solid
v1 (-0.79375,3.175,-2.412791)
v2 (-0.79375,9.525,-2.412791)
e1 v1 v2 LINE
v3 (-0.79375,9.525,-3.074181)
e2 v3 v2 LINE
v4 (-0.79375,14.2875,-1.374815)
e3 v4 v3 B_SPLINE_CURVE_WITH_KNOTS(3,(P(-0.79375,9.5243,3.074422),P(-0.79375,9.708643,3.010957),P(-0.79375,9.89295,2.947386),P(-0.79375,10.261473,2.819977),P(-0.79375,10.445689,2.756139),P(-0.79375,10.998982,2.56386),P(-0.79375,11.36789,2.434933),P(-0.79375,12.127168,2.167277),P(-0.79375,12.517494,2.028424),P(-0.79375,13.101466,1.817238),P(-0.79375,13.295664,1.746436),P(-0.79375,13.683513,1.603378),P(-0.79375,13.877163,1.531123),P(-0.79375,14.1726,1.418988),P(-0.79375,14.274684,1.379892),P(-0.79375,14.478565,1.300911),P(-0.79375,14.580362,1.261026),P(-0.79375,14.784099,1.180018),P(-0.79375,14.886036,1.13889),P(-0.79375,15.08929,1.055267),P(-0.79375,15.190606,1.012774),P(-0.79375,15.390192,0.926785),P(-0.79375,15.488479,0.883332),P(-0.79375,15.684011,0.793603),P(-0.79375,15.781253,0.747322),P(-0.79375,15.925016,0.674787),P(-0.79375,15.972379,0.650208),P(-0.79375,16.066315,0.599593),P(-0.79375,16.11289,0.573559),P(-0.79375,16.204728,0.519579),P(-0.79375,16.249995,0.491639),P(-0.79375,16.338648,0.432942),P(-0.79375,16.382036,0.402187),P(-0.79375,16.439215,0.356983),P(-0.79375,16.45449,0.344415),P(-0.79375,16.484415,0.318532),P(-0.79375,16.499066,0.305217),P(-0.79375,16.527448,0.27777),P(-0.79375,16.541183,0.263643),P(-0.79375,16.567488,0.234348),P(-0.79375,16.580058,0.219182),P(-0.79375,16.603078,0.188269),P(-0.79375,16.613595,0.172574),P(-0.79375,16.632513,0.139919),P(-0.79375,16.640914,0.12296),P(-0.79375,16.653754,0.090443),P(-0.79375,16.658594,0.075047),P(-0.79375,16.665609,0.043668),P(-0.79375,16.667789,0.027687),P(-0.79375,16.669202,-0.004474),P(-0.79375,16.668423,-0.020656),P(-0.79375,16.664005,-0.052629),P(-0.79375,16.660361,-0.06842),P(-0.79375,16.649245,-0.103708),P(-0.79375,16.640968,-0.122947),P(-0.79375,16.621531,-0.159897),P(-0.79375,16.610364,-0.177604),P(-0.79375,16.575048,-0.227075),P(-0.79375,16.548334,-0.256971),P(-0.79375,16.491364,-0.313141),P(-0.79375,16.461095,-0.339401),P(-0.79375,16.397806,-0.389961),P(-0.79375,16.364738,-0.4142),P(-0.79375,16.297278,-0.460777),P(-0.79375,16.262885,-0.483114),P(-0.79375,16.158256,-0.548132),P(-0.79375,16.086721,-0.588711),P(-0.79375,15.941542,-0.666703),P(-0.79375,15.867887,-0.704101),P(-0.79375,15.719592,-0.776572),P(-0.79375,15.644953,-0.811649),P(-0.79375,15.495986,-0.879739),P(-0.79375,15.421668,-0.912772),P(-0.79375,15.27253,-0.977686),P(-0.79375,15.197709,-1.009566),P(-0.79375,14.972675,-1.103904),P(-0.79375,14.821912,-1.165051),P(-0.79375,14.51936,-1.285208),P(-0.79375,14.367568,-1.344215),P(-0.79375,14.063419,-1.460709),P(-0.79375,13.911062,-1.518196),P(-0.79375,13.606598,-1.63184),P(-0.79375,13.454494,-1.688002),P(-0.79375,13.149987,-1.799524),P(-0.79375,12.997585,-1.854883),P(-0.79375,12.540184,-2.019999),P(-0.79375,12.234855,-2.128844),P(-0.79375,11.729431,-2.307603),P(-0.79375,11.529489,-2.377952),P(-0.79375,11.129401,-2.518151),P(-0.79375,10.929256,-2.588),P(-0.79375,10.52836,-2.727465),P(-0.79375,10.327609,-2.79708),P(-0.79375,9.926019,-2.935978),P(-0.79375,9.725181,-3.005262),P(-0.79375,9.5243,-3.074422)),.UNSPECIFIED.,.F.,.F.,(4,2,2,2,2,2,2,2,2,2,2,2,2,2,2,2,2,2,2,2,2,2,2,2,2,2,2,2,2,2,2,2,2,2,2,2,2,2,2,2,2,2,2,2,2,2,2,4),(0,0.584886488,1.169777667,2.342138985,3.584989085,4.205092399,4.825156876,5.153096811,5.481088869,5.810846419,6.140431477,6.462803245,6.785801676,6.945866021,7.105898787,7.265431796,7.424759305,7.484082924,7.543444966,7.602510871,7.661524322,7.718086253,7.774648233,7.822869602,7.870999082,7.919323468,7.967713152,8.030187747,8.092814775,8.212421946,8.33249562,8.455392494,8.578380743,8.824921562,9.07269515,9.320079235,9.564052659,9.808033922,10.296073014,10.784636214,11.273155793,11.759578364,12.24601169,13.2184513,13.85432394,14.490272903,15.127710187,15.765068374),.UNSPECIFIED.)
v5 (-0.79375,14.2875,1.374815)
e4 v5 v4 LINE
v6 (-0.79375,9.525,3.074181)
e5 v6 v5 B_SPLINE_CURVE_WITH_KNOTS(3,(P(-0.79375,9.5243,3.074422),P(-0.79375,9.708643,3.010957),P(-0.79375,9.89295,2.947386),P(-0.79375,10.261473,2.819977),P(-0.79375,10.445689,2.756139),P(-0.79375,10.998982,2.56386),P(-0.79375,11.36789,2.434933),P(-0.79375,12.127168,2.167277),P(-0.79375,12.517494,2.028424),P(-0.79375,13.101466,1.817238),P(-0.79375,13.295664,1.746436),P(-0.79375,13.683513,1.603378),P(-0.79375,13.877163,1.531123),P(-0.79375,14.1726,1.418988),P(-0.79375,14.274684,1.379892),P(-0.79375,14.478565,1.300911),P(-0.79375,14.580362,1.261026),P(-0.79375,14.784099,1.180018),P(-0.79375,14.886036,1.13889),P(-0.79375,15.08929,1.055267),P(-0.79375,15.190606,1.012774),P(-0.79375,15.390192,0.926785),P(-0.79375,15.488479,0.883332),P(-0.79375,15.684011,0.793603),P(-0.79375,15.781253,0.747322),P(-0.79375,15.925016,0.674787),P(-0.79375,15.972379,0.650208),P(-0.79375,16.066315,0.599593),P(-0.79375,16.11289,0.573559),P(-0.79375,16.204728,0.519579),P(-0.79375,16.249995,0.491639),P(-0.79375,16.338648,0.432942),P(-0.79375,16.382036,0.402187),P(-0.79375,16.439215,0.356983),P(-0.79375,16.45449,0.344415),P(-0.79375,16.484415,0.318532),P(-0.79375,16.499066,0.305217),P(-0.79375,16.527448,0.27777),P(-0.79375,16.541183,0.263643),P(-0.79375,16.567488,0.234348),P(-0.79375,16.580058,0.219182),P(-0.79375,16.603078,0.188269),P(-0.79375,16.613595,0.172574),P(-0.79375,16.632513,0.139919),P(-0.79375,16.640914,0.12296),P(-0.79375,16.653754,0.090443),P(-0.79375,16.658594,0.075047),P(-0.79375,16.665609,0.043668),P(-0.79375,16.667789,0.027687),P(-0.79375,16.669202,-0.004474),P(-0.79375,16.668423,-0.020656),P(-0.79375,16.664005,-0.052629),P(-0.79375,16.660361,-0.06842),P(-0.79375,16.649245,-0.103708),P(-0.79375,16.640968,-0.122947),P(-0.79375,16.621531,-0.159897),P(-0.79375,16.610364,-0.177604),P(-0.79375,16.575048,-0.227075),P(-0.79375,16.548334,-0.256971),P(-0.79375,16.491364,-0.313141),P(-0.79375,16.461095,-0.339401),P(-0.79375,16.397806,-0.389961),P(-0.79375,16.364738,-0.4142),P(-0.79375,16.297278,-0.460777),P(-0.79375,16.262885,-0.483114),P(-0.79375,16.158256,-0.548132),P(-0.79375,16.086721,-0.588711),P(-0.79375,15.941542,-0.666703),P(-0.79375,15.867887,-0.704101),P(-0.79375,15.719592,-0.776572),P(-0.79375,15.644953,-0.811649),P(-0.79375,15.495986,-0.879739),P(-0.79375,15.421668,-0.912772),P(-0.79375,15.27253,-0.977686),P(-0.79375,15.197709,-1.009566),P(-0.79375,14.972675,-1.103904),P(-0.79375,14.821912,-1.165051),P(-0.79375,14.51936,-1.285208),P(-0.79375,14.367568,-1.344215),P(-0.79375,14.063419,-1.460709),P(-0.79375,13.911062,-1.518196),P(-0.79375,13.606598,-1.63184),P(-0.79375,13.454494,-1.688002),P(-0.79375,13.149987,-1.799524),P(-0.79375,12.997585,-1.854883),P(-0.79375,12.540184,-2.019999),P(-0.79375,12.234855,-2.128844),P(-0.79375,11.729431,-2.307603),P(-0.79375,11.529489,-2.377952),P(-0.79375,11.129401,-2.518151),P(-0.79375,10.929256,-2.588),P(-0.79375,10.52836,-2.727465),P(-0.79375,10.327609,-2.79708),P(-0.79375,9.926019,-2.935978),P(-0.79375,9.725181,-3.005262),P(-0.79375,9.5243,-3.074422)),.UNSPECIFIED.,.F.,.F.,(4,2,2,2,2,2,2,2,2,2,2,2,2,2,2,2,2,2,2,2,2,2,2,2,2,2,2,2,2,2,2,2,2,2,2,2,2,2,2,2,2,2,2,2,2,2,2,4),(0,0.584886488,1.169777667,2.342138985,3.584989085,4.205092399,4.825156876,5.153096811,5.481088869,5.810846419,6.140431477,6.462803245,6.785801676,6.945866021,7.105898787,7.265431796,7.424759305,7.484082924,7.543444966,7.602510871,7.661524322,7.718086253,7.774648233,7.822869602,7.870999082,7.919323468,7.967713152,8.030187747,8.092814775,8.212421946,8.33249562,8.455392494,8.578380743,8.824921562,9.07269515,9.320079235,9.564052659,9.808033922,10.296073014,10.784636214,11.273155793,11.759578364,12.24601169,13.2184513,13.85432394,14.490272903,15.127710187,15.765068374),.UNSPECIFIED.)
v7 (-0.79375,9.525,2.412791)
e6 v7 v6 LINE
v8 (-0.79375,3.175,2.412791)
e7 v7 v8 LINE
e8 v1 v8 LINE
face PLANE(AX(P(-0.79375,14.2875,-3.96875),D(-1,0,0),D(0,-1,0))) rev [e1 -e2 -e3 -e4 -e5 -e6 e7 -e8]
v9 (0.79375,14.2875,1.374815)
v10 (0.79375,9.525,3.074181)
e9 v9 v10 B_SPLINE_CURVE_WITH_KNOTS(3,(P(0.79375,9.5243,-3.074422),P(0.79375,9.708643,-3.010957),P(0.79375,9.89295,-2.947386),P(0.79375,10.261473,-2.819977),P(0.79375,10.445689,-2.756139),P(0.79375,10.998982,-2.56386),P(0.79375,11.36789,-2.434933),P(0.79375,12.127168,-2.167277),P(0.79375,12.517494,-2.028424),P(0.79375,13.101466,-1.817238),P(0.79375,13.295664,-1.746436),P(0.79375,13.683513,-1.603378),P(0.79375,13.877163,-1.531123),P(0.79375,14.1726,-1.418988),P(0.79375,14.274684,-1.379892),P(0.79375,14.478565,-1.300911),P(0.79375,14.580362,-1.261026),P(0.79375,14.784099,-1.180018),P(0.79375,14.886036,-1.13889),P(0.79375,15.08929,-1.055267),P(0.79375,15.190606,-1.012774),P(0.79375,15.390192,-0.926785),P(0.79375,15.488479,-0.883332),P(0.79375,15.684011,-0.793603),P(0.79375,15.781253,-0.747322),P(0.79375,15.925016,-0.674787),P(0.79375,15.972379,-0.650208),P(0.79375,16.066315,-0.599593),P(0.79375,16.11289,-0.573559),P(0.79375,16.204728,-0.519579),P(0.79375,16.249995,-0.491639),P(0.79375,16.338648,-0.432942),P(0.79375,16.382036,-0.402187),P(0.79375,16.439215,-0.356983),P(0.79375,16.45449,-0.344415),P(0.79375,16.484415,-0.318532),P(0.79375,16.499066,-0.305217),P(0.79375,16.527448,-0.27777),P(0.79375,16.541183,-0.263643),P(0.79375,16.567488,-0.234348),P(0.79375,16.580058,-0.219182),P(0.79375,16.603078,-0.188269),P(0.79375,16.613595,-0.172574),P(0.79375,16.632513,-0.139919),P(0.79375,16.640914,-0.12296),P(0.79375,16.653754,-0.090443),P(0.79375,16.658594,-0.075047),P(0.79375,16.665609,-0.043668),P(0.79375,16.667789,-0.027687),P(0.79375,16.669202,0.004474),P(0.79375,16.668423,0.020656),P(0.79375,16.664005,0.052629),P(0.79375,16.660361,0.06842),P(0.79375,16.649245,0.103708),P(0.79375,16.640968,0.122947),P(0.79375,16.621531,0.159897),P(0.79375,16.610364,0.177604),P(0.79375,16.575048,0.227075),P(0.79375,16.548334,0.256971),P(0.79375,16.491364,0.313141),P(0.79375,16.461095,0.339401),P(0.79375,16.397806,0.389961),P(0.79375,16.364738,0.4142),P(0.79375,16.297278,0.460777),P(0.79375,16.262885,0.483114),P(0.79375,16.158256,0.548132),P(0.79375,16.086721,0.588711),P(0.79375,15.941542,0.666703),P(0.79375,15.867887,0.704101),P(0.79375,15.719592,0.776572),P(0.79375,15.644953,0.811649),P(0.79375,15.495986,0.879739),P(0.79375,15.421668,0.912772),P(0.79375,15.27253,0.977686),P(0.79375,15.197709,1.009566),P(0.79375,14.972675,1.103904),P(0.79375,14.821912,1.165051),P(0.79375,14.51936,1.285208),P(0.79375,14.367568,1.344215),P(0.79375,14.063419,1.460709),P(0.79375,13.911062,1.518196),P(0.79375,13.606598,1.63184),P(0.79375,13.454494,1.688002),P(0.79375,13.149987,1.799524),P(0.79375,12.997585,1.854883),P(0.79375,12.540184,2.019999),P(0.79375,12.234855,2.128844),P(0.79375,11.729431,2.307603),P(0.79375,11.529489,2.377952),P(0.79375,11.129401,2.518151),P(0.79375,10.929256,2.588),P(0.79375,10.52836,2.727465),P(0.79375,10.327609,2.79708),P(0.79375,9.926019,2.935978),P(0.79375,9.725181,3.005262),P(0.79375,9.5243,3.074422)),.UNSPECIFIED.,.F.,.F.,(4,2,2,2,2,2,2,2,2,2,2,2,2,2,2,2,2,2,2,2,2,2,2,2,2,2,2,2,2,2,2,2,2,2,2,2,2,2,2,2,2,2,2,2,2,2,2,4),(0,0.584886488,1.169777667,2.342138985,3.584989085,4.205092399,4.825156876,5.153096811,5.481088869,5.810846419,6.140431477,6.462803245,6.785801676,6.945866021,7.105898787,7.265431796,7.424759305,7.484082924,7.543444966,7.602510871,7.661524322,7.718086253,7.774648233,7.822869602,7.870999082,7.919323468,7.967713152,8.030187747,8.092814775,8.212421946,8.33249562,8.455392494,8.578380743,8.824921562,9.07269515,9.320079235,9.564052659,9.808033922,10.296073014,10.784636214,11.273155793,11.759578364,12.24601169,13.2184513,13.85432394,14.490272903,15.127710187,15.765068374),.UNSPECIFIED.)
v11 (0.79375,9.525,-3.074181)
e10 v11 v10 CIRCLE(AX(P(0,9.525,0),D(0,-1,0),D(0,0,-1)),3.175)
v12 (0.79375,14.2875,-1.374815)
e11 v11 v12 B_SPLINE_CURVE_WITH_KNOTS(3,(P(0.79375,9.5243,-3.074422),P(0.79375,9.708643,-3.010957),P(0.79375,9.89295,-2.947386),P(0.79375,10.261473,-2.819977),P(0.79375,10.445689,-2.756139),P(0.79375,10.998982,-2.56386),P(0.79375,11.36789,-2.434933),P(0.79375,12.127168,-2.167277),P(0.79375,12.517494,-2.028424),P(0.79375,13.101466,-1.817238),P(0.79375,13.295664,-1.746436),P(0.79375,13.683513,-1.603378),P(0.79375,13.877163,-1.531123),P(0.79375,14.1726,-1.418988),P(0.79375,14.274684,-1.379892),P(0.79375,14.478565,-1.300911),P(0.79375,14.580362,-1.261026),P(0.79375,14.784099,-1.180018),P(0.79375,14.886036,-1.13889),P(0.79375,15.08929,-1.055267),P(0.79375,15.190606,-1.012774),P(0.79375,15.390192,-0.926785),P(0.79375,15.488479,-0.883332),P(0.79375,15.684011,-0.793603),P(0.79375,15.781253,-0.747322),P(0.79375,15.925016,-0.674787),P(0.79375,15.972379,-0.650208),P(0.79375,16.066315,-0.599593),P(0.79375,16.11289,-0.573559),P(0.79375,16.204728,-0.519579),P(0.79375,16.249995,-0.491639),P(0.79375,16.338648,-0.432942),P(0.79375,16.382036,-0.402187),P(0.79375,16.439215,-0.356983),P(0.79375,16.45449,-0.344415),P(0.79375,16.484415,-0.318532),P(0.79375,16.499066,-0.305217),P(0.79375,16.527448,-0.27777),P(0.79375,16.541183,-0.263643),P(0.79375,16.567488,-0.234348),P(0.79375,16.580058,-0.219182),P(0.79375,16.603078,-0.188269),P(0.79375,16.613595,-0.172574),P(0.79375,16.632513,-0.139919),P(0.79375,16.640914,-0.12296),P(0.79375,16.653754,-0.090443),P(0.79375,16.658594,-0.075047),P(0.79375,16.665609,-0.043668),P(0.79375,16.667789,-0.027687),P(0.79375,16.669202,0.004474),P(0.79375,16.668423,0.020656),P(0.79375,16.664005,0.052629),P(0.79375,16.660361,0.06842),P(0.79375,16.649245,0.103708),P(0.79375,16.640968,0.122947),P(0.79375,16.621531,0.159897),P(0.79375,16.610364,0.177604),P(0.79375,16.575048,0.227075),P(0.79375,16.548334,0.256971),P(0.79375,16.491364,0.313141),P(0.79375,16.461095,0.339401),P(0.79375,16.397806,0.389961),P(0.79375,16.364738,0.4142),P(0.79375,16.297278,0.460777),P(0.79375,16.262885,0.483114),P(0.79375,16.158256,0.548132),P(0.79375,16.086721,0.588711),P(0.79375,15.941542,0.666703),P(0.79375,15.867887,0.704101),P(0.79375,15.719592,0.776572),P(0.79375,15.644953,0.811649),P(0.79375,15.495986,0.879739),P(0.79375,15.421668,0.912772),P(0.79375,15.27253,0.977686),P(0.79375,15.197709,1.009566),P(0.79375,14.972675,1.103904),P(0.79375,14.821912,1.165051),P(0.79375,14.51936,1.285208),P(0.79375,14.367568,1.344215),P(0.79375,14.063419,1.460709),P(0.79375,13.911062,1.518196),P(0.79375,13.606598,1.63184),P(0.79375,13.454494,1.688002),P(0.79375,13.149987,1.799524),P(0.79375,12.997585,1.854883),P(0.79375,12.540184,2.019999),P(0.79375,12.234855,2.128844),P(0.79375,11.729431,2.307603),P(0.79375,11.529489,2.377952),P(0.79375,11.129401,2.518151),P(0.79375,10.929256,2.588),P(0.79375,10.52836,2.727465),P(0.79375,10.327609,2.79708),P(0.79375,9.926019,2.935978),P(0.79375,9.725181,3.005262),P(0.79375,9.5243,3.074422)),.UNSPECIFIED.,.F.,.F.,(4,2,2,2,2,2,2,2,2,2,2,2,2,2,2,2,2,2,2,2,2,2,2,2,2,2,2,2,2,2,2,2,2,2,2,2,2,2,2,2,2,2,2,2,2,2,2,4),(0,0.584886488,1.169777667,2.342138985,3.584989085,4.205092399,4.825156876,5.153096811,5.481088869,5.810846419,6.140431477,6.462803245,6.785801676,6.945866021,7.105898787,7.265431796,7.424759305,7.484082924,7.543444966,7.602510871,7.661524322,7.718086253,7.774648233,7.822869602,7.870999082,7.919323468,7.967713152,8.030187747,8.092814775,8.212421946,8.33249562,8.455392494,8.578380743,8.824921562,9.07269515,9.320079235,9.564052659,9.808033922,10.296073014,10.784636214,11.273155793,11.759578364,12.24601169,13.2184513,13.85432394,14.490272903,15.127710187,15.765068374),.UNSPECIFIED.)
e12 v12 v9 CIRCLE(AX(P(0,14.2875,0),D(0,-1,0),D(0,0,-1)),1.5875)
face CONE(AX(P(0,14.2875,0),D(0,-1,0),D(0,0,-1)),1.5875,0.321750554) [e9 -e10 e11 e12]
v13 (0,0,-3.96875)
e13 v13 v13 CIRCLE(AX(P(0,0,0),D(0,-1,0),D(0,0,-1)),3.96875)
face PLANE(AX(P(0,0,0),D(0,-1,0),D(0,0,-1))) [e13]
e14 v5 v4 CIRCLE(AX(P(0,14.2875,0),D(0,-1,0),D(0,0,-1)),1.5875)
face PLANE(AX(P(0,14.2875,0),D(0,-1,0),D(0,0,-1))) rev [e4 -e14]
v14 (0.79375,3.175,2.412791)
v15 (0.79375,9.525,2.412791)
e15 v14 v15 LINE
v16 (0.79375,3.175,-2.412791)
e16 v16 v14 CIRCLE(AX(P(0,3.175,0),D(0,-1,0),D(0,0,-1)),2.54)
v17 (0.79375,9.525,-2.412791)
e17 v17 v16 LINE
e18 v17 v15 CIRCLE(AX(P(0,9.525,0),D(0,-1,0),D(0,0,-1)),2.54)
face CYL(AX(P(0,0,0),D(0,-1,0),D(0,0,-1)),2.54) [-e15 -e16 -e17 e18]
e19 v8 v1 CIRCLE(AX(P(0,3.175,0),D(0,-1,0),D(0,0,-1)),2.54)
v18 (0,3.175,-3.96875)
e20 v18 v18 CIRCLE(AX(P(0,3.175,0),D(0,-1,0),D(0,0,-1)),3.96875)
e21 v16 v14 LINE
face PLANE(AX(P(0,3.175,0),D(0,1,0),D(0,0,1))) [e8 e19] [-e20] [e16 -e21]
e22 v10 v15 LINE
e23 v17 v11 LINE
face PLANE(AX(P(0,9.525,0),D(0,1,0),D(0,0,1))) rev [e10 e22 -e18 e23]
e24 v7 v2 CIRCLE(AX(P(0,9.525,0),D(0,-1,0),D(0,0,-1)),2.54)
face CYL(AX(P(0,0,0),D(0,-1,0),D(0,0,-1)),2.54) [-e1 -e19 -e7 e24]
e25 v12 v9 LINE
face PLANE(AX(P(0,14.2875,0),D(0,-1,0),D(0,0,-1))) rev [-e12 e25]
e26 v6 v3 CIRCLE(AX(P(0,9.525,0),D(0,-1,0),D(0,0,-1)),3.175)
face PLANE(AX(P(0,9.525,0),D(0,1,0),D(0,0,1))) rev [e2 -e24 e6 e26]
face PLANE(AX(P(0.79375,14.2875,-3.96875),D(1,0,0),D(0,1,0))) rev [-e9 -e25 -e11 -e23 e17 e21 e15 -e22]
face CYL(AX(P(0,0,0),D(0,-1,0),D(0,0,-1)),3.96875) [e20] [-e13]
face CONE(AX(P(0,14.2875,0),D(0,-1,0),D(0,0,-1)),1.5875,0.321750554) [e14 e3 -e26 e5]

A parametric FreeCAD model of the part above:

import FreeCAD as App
import Part
import Sketcher
from FreeCAD import Vector
Q = App.Units.Quantity


def add_polygon(sketch, points):
    """Adds a closed chain of lines whose ends are joined by coincident constraints."""
    first, n = sketch.GeometryCount, len(points)
    for a, b in zip(points, points[1:] + points[:1]):
        sketch.addGeometry(Part.LineSegment(App.Vector(*a, 0), App.Vector(*b, 0)), False)
    for i in range(n):
        sketch.addConstraint(Sketcher.Constraint("Coincident", first + i, 2, first + (i + 1) % n, 1))

doc = App.newDocument("Part")
body = doc.addObject("PartDesign::Body", "Body")

sketch1 = body.newObject("Sketcher::SketchObject", "Sketch")
sketch1.AttachmentSupport = (doc.getObject("YZ_Plane"), [""])
sketch1.MapMode = "FlatFace"
add_polygon(sketch1, [(0, 0), (0, -4), (3.2, -4), (3.2, -2.5), (9.5, -2.5), (9.5, -3.2), (14.3, -1.6), (14.3, 0)])
sketch1.addConstraint([
    Sketcher.Constraint("Vertical", 0),
    Sketcher.Constraint("Horizontal", 1),
    Sketcher.Constraint("Vertical", 2),
    Sketcher.Constraint("Horizontal", 3),
    Sketcher.Constraint("Vertical", 4),
    Sketcher.Constraint("Vertical", 6),
    Sketcher.Constraint("Horizontal", 7),
    Sketcher.Constraint("Coincident", 7, 2, -1, 1),
    Sketcher.Constraint("DistanceX", 3, 1, 3, 2, Q("0.25 in")),
    Sketcher.Constraint("DistanceY", 2, 2, -1, 1, Q("0.1 in")),
    Sketcher.Constraint("DistanceX", 1, 1, 1, 2, Q("0.125 in")),
    Sketcher.Constraint("DistanceX", 7, 2, 7, 1, Q("0.5625 in")),
    Sketcher.Constraint("DistanceY", 0, 2, 0, 1, Q("0.15625 in")),
    Sketcher.Constraint("DistanceY", 4, 2, 4, 1, Q("0.025 in")),
    Sketcher.Constraint("DistanceY", 6, 1, 6, 2, Q("0.0625 in")),
])
revolution = body.newObject("PartDesign::Revolution", "Revolution")
revolution.Profile = sketch1
revolution.ReferenceAxis = (sketch1, ["H_Axis"])
revolution.Angle = 360

sketch2 = body.newObject("Sketcher::SketchObject", "Sketch001")
sketch2.AttachmentSupport = (doc.getObject("XY_Plane"), [""])
sketch2.MapMode = "FlatFace"
add_polygon(sketch2, [(-0.8, 14.3), (-0.8, 3.2), (0.8, 3.2), (0.8, 14.3)])
sketch2.addConstraint([
    Sketcher.Constraint("Vertical", 0),
    Sketcher.Constraint("Horizontal", 1),
    Sketcher.Constraint("Vertical", 2),
    Sketcher.Constraint("Horizontal", 3),
    Sketcher.Constraint("DistanceX", 1, 1, 1, 2, Q("0.0625 in")),
    Sketcher.Constraint("DistanceY", 0, 2, 0, 1, Q("0.4375 in")),
    Sketcher.Constraint("DistanceX", 0, 2, -1, 1, Q("0.03125 in")),
    Sketcher.Constraint("DistanceY", -1, 1, 0, 2, Q("0.125 in")),
])
pocket1 = body.newObject("PartDesign::Pocket", "Pocket")
pocket1.Profile = sketch2
pocket1.Type = "ThroughAll"
pocket1.Midplane = True

doc.recompute()
